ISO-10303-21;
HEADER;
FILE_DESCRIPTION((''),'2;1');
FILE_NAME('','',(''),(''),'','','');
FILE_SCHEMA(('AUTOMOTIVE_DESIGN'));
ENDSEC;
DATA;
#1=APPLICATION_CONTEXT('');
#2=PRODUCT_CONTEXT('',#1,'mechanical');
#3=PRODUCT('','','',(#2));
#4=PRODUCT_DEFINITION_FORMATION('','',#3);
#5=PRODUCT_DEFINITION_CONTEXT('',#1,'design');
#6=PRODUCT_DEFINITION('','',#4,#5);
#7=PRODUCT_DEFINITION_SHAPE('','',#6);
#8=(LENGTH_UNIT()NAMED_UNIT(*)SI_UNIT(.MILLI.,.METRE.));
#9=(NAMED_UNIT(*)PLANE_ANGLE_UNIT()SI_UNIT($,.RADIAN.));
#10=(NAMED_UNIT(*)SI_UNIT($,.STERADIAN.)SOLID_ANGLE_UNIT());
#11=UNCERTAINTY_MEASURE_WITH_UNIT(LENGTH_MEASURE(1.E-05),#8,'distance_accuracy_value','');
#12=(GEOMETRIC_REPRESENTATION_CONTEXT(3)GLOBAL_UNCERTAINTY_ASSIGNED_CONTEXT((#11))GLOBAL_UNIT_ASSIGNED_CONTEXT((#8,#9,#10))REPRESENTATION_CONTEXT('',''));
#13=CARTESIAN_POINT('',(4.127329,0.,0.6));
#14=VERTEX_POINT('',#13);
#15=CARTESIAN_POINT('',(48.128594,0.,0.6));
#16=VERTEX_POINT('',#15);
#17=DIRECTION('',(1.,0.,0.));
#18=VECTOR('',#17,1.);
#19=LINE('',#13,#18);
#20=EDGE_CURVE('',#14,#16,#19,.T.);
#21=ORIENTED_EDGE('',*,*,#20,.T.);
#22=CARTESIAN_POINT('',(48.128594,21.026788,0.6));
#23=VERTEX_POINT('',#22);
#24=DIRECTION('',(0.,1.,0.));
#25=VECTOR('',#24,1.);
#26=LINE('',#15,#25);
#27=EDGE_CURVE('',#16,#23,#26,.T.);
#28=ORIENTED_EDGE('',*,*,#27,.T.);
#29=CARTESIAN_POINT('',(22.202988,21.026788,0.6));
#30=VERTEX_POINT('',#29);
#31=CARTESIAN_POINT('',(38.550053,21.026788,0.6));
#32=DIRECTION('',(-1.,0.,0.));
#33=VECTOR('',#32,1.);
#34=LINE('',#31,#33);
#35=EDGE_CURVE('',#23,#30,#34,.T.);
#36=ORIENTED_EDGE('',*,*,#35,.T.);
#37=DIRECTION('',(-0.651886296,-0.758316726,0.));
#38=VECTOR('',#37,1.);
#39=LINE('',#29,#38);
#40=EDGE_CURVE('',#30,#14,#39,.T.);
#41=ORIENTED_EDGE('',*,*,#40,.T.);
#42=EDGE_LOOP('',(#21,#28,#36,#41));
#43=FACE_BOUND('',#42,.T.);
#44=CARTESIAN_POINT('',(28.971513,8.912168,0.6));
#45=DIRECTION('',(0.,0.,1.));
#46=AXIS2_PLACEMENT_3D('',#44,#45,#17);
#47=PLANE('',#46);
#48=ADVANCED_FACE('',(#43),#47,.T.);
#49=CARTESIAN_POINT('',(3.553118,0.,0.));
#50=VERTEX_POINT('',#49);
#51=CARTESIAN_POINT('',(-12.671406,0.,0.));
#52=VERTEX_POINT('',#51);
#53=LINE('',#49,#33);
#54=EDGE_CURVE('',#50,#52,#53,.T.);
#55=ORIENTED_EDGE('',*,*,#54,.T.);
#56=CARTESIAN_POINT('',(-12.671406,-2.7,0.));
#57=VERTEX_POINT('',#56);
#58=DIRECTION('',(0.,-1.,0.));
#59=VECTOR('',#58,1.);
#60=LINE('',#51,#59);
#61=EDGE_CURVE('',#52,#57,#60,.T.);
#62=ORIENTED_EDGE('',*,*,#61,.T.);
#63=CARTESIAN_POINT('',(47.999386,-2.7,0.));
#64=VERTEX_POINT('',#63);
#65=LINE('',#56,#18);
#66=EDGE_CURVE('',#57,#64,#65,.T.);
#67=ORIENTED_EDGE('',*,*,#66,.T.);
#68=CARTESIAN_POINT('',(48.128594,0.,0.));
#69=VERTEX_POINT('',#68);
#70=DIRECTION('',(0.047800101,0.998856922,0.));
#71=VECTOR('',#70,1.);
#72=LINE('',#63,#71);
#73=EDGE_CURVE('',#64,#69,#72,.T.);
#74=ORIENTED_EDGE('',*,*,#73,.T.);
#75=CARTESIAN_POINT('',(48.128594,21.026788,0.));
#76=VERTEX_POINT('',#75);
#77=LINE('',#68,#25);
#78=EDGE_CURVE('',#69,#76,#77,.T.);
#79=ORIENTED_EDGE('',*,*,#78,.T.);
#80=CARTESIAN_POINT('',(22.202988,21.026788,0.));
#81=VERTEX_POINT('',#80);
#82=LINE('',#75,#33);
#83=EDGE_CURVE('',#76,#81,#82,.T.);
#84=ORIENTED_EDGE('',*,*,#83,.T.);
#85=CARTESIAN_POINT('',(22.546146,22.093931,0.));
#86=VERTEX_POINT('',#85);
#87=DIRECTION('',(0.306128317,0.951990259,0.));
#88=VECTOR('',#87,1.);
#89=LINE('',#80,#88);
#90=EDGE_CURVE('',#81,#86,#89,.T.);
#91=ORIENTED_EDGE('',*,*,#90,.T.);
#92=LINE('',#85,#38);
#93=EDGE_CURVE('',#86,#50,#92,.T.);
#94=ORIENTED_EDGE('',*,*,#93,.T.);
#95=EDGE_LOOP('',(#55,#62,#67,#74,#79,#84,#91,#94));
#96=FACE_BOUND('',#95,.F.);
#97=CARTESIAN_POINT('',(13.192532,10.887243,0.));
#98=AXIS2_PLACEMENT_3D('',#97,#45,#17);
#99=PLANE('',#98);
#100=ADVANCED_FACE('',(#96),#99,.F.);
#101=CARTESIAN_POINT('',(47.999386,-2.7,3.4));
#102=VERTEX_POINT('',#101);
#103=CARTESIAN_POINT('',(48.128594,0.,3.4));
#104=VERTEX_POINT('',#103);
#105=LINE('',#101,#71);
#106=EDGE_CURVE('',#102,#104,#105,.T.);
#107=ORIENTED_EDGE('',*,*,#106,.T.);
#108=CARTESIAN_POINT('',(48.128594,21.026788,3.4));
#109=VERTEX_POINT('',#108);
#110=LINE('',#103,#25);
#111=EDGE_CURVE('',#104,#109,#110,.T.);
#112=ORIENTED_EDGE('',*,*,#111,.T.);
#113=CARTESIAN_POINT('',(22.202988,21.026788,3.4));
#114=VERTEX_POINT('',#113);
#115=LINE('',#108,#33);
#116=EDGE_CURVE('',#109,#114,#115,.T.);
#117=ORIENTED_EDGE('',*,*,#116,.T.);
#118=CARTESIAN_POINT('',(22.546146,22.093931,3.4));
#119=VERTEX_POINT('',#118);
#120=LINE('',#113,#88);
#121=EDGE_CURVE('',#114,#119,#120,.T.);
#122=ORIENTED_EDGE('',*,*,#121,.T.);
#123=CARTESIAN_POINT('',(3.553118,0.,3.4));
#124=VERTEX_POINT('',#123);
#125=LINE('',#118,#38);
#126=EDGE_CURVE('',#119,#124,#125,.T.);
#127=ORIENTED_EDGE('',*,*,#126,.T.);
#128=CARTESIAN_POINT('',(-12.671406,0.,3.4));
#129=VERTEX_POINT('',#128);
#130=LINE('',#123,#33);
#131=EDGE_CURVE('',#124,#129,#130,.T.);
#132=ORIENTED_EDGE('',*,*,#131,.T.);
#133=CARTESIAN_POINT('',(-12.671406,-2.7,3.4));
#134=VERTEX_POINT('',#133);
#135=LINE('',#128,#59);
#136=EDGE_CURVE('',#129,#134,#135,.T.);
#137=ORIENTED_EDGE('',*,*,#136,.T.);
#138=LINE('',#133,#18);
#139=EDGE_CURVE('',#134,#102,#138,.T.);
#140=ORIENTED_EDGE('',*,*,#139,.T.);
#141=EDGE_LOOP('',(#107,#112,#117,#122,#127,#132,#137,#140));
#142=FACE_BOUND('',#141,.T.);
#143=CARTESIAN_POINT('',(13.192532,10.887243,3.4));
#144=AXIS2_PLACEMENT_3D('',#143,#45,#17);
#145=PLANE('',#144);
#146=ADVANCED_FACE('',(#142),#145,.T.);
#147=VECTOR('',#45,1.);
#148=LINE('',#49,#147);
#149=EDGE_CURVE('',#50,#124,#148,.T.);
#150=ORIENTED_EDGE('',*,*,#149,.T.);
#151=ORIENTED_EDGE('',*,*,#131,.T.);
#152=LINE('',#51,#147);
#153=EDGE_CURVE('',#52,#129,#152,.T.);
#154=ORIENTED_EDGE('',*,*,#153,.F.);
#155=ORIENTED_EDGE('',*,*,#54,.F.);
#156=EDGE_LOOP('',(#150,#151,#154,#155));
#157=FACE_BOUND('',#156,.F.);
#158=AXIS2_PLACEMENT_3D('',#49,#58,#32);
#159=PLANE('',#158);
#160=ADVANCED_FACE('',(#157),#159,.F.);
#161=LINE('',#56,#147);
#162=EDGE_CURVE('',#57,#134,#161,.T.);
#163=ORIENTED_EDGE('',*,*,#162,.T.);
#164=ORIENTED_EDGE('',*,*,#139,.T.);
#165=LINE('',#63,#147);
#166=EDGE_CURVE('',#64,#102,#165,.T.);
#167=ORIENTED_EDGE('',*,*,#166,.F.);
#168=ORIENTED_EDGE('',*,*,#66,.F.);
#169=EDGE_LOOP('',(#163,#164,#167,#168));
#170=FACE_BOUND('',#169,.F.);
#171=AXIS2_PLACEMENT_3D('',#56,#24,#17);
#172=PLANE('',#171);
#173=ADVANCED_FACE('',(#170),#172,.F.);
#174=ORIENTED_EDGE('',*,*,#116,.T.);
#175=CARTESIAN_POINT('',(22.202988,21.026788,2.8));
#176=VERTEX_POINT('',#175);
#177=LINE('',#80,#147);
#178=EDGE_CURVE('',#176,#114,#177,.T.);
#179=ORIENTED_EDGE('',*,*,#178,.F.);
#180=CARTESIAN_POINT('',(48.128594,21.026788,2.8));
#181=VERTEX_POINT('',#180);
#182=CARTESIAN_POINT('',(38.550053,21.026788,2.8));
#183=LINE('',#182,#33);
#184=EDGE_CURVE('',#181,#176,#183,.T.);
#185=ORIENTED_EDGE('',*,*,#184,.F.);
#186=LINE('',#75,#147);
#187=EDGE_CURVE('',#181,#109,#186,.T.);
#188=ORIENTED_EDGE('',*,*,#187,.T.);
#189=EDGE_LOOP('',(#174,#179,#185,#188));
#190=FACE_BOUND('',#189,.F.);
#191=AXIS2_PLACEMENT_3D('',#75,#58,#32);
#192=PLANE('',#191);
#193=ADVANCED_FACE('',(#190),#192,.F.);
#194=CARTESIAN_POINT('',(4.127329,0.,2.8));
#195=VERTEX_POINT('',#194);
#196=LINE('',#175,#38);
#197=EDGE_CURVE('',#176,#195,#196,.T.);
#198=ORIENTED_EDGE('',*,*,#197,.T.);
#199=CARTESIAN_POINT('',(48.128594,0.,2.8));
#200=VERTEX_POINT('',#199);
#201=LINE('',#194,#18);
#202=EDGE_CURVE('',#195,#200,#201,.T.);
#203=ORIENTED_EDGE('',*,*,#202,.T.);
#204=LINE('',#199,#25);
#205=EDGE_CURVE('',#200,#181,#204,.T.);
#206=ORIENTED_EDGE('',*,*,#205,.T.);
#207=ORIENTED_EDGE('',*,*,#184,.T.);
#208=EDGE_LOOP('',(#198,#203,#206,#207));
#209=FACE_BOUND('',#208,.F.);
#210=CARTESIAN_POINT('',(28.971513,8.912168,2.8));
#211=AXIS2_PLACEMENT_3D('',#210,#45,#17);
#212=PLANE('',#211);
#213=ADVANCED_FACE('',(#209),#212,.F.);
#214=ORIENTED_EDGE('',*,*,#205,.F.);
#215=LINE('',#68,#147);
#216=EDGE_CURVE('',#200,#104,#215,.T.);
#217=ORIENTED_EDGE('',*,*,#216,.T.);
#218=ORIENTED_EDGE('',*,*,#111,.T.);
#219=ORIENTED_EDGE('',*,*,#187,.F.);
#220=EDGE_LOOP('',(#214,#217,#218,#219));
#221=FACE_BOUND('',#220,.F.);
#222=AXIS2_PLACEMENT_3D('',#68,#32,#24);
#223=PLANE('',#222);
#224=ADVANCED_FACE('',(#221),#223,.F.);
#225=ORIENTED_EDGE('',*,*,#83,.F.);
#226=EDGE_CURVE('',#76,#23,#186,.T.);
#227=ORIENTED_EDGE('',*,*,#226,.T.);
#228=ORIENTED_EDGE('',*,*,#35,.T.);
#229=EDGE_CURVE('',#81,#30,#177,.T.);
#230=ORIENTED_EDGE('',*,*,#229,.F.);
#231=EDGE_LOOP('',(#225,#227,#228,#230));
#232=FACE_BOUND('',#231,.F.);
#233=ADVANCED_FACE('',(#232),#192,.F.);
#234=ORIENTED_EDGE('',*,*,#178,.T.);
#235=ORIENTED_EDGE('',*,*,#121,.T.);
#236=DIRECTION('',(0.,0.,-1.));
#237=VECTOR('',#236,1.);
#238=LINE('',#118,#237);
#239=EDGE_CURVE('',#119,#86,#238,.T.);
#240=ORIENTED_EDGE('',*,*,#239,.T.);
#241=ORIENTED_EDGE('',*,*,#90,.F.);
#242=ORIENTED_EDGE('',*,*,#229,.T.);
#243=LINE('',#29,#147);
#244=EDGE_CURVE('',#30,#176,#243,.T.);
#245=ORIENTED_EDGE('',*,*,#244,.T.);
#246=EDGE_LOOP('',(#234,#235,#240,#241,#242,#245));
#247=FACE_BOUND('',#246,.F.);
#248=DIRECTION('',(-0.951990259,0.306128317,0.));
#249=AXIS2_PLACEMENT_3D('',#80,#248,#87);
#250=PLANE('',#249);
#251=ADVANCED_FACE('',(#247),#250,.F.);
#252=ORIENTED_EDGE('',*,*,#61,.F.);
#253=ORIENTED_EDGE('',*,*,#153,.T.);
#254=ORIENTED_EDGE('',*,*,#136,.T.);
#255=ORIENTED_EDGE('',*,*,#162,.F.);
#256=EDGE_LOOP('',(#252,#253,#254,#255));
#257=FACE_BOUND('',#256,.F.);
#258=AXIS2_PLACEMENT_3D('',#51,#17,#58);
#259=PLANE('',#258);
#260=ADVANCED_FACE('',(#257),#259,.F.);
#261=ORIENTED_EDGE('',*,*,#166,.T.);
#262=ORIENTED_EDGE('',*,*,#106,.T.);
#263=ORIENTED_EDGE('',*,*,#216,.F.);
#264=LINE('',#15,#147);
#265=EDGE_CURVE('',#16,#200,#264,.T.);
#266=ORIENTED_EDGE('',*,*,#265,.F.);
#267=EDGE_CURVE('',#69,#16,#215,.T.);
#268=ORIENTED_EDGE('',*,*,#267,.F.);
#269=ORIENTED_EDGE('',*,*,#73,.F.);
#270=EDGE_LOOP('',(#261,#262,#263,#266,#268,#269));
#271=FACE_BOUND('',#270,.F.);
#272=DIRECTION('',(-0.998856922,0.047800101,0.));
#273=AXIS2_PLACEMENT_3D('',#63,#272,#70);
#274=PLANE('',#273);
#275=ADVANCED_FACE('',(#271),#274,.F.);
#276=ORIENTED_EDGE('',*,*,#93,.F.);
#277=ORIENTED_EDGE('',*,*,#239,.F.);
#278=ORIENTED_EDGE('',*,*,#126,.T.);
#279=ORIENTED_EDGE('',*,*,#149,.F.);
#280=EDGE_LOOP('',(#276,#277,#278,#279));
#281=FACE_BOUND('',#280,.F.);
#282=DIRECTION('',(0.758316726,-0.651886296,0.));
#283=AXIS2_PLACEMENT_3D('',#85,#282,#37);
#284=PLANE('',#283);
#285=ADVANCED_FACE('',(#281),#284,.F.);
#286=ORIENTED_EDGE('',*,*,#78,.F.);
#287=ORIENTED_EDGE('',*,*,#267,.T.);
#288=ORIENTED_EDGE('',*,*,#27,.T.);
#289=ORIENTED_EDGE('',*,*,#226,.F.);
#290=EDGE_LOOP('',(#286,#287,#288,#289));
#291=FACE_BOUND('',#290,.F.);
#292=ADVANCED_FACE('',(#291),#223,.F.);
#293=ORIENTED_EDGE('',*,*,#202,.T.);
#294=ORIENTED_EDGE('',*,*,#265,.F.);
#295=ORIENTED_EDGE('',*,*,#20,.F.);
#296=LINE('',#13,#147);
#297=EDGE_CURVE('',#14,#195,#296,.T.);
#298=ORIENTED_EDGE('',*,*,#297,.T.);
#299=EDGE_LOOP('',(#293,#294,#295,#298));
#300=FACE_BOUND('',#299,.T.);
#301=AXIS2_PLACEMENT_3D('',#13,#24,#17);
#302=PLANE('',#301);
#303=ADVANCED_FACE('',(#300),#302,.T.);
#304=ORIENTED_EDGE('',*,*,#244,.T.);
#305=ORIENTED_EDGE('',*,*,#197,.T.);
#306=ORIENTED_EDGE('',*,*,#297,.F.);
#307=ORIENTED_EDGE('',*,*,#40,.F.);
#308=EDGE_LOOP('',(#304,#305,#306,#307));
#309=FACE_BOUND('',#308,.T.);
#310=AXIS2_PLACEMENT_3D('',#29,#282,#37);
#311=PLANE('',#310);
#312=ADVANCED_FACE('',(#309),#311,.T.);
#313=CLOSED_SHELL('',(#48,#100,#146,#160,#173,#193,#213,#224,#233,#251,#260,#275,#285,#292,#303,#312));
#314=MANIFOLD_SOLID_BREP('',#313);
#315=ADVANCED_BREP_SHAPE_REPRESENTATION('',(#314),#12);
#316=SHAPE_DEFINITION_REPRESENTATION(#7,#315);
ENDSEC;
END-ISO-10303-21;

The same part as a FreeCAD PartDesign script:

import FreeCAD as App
import Part
import Sketcher


def add_polygon(sketch, points):
    """Adds a closed chain of lines whose ends are joined by coincident constraints."""
    first, n = sketch.GeometryCount, len(points)
    for a, b in zip(points, points[1:] + points[:1]):
        sketch.addGeometry(Part.LineSegment(App.Vector(*a, 0), App.Vector(*b, 0)), False)
    for i in range(n):
        sketch.addConstraint(Sketcher.Constraint("Coincident", first + i, 2, first + (i + 1) % n, 1))

doc = App.newDocument("Part")
body = doc.addObject("PartDesign::Body", "Body")

# Sketch on XY plane
sketch1 = doc.addObject("Sketcher::SketchObject", "Sketch")
body.addObject(sketch1)
sketch1.AttachmentSupport = (doc.XY_Plane, [""])
sketch1.MapMode = "FlatFace"
add_polygon(sketch1, [(22.546146, 22.093931), (3.553118, 0), (-12.671406, 0), (-12.671406, -2.7), (47.999386, -2.7), (48.128594, 0), (48.128594, 21.026788), (22.202988, 21.026788)])  # lines 0-7
sketch1.addConstraint([
    Sketcher.Constraint("Horizontal", 1),
    Sketcher.Constraint("Vertical", 2),
    Sketcher.Constraint("Horizontal", 3),
    Sketcher.Constraint("Vertical", 5),
    Sketcher.Constraint("Horizontal", 6),
    Sketcher.Constraint("PointOnObject", 0, 2, -1),
    Sketcher.Constraint("PointOnObject", 4, 2, -1),
    Sketcher.Constraint("DistanceY", 2, 2, 2, 1, 2.7),
    Sketcher.Constraint("DistanceX", 1, 2, 4, 2, 60.8),
    Sketcher.Constraint("DistanceY", 5, 1, 5, 2, 21.026788),
    Sketcher.Constraint("Distance", 4, 2.70309),
    Sketcher.Constraint("Distance", 7, 1.12096),
    Sketcher.Constraint("DistanceX", 1, 2, 1, 1, 16.224524),
    Sketcher.Constraint("DistanceX", 6, 2, 6, 1, 25.925605),
    Sketcher.Constraint("DistanceX", -1, 1, 6, 2, 22.202988),
    Sketcher.Constraint("DistanceY", -1, 1, 7, 2, 22.093931),
])
pad1 = doc.addObject("PartDesign::Pad", "Pad")
body.addObject(pad1)
pad1.Profile = sketch1
pad1.Length = 3.4

# Sketch on XY plane
sketch2 = doc.addObject("Sketcher::SketchObject", "Sketch001")
body.addObject(sketch2)
sketch2.AttachmentSupport = (doc.XY_Plane, [""])
sketch2.MapMode = "FlatFace"
sketch2.AttachmentOffset = App.Placement(App.Vector(0, 0, 0.6), App.Rotation())
add_polygon(sketch2, [(22.202988, 21.026788), (4.127329, 0), (48.128594, 0), (48.128594, 22.093931), (22.546146, 22.093931)])  # lines 0-4
sketch2.addConstraint([
    Sketcher.Constraint("Horizontal", 1),
    Sketcher.Constraint("Vertical", 2),
    Sketcher.Constraint("Horizontal", 3),
    Sketcher.Constraint("PointOnObject", 0, 2, -1),
    Sketcher.Constraint("DistanceY", 2, 1, 2, 2, 22.093931),
    Sketcher.Constraint("Distance", 0, 27.72824),
    Sketcher.Constraint("Distance", 4, 1.12096),
    Sketcher.Constraint("DistanceX", 1, 1, 1, 2, 44.001265),
    Sketcher.Constraint("DistanceX", 3, 2, 3, 1, 25.582448),
    Sketcher.Constraint("DistanceX", -1, 1, 0, 2, 4.127329),
])
pocket1 = doc.addObject("PartDesign::Pocket", "Pocket")
body.addObject(pocket1)
pocket1.Profile = sketch2
pocket1.Length = 2.2
pocket1.Reversed = True

doc.recompute()
